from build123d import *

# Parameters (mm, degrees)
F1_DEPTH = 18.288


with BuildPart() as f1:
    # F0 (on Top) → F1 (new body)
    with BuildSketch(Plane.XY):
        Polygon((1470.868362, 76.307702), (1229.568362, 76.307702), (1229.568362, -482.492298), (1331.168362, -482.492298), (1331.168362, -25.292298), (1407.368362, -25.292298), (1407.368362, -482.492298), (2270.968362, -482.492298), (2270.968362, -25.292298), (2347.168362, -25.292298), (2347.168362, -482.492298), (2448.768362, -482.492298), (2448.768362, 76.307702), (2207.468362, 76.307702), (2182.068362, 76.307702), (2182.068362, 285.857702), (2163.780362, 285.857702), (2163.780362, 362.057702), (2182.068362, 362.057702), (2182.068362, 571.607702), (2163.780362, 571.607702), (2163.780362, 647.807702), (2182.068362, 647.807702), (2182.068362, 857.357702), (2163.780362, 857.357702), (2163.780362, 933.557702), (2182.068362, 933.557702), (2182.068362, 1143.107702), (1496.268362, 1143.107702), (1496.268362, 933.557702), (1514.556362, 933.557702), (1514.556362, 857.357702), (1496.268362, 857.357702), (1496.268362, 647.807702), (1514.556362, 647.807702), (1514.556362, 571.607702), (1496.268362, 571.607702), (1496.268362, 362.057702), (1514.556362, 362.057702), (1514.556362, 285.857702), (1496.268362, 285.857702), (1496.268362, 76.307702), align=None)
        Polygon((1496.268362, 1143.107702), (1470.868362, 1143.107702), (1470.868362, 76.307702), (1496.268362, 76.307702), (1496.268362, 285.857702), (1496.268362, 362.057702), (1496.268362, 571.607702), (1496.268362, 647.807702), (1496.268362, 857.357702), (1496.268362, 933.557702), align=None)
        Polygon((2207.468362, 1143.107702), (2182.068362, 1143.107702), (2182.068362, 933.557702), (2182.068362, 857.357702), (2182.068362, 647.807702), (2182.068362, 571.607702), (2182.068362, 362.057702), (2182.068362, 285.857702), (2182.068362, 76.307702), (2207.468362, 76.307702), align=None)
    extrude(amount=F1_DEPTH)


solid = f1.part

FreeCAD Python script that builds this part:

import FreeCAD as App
import Part
import Sketcher
from FreeCAD import Vector
Q = App.Units.Quantity


def add_polygon(sketch, points):
    """Adds a closed chain of lines whose ends are joined by coincident constraints."""
    first, n = sketch.GeometryCount, len(points)
    for a, b in zip(points, points[1:] + points[:1]):
        sketch.addGeometry(Part.LineSegment(App.Vector(*a, 0), App.Vector(*b, 0)), False)
    for i in range(n):
        sketch.addConstraint(Sketcher.Constraint("Coincident", first + i, 2, first + (i + 1) % n, 1))

doc = App.newDocument("Part")
params = doc.addObject("Spreadsheet::Sheet", "Params")
for row, (alias, value) in enumerate([
    ("sketch1_width", "4 in"),
    ("sketch1_width2", "3 in"),
    ("sketch1_width3", "34 in"),
    ("sketch1_width4", "29 in"),
    ("sketch1_height", "22 in"),
    ("pad1_length", "0.72 in"),
], start=1):
    params.set(f"A{row}", alias)
    params.set(f"B{row}", "=" + value)
    params.setAlias(f"B{row}", alias)

body = doc.addObject("PartDesign::Body", "Body")

sketch1 = body.newObject("Sketcher::SketchObject", "Sketch")
sketch1.AttachmentSupport = (doc.getObject("XY_Plane"), [""])
sketch1.MapMode = "FlatFace"
add_polygon(sketch1, [(1230, 76), (1230, -482), (1331, -482), (1331, -25), (1407, -25), (1407, -482), (2271, -482), (2271, -25), (2347, -25), (2347, -482), (2449, -482), (2449, 76), (2207, 76), (2207, 1143), (1471, 1143), (1471, 76)])
add_polygon(sketch1, [(2182, 286), (2164, 286), (2164, 362), (2182, 362)])
add_polygon(sketch1, [(2182, 572), (2164, 572), (2164, 648), (2182, 648)])
add_polygon(sketch1, [(2182, 857), (2164, 857), (2164, 934), (2182, 934)])
add_polygon(sketch1, [(1496, 934), (1515, 934), (1515, 857), (1496, 857)])
add_polygon(sketch1, [(1496, 648), (1515, 648), (1515, 572), (1496, 572)])
add_polygon(sketch1, [(1496, 362), (1515, 362), (1515, 286), (1496, 286)])
sketch1.addConstraint([
    Sketcher.Constraint("Vertical", 0),
    Sketcher.Constraint("Horizontal", 1),
    Sketcher.Constraint("Vertical", 2),
    Sketcher.Constraint("Horizontal", 3),
    Sketcher.Constraint("Vertical", 4),
    Sketcher.Constraint("Horizontal", 5),
    Sketcher.Constraint("Vertical", 6),
    Sketcher.Constraint("Horizontal", 7),
    Sketcher.Constraint("Vertical", 8),
    Sketcher.Constraint("Horizontal", 9),
    Sketcher.Constraint("Vertical", 10),
    Sketcher.Constraint("Horizontal", 11),
    Sketcher.Constraint("Vertical", 12),
    Sketcher.Constraint("Horizontal", 13),
    Sketcher.Constraint("Vertical", 14),
    Sketcher.Constraint("Horizontal", 15),
    Sketcher.Constraint("Horizontal", 16),
    Sketcher.Constraint("Vertical", 17),
    Sketcher.Constraint("Horizontal", 18),
    Sketcher.Constraint("Vertical", 19),
    Sketcher.Constraint("Horizontal", 20),
    Sketcher.Constraint("Vertical", 21),
    Sketcher.Constraint("Horizontal", 22),
    Sketcher.Constraint("Vertical", 23),
    Sketcher.Constraint("Horizontal", 24),
    Sketcher.Constraint("Vertical", 25),
    Sketcher.Constraint("Horizontal", 26),
    Sketcher.Constraint("Vertical", 27),
    Sketcher.Constraint("Horizontal", 28),
    Sketcher.Constraint("Vertical", 29),
    Sketcher.Constraint("Horizontal", 30),
    Sketcher.Constraint("Vertical", 31),
    Sketcher.Constraint("Horizontal", 32),
    Sketcher.Constraint("Vertical", 33),
    Sketcher.Constraint("Horizontal", 34),
    Sketcher.Constraint("Vertical", 35),
    Sketcher.Constraint("Horizontal", 36),
    Sketcher.Constraint("Vertical", 37),
    Sketcher.Constraint("Horizontal", 38),
    Sketcher.Constraint("Vertical", 39),
    Sketcher.Constraint("Horizontal", 1, 2, 4, 2),
    Sketcher.Constraint("Horizontal", 3, 2, 6, 2),
    Sketcher.Constraint("Horizontal", 5, 2, 8, 2),
    Sketcher.Constraint("Horizontal", 11, 2, 14, 2),
    Sketcher.Constraint("Horizontal", 26, 2, 28, 2),
    Sketcher.Constraint("Horizontal", 27, 2, 29, 2),
    Sketcher.Constraint("Horizontal", 22, 2, 32, 2),
    Sketcher.Constraint("Horizontal", 23, 2, 33, 2),
    Sketcher.Constraint("Horizontal", 18, 2, 36, 2),
    Sketcher.Constraint("Horizontal", 19, 2, 37, 2),
    Sketcher.Constraint("Vertical", 17, 2, 20, 2),
    Sketcher.Constraint("Vertical", 19, 2, 22, 2),
    Sketcher.Constraint("Vertical", 21, 2, 24, 2),
    Sketcher.Constraint("Vertical", 23, 2, 26, 2),
    Sketcher.Constraint("Vertical", 29, 2, 32, 2),
    Sketcher.Constraint("Vertical", 31, 2, 34, 2),
    Sketcher.Constraint("Vertical", 33, 2, 36, 2),
    Sketcher.Constraint("Vertical", 35, 2, 38, 2),
    Sketcher.Constraint("Equal", 3, 7),
    Sketcher.Constraint("Equal", 1, 9),
    Sketcher.Constraint("Equal", 11, 15),
    Sketcher.Constraint("Equal", 26, 28),
    Sketcher.Constraint("Equal", 7, 17),
    Sketcher.Constraint("Equal", 19, 21),
    Sketcher.Constraint("Equal", 23, 25),
    Sketcher.Constraint("DistanceX", 1, 1, 1, 2, Q("4 in")),
    Sketcher.Constraint("DistanceX", 3, 1, 3, 2, Q("3 in")),
    Sketcher.Constraint("DistanceX", 5, 1, 5, 2, Q("34 in")),
    Sketcher.Constraint("DistanceX", 13, 2, 13, 1, Q("29 in")),
    Sketcher.Constraint("DistanceY", 0, 2, 0, 1, Q("22 in")),
    Sketcher.Constraint("DistanceY", 2, 1, 2, 2, Q("18 in")),
    Sketcher.Constraint("DistanceY", 12, 1, 12, 2, Q("42 in")),
    Sketcher.Constraint("DistanceX", 18, 2, 11, 2, Q("1 in")),
    Sketcher.Constraint("DistanceX", 13, 2, 30, 2, Q("1 in")),
    Sketcher.Constraint("DistanceX", 16, 2, 16, 1, Q("0.72 in")),
    Sketcher.Constraint("DistanceY", 11, 2, 20, 2, Q("19.5 in")),
    Sketcher.Constraint("DistanceY", 11, 2, 16, 2, Q("8.25 in")),
    Sketcher.Constraint("DistanceY", 21, 2, 24, 2, Q("8.25 in")),
    Sketcher.Constraint("DistanceY", 0, 2, -1, 1, Q("482.492298 mm")),
    Sketcher.Constraint("DistanceX", -1, 1, 0, 2, Q("1229.568362 mm")),
])
sketch1.setExpression("Constraints[105]", "Params.sketch1_width")
sketch1.setExpression("Constraints[106]", "Params.sketch1_width2")
sketch1.setExpression("Constraints[107]", "Params.sketch1_width3")
sketch1.setExpression("Constraints[108]", "Params.sketch1_width4")
sketch1.setExpression("Constraints[109]", "Params.sketch1_height")
pad1 = body.newObject("PartDesign::Pad", "Pad")
pad1.Profile = sketch1
pad1.setExpression("Length", "Params.pad1_length")

doc.recompute()
